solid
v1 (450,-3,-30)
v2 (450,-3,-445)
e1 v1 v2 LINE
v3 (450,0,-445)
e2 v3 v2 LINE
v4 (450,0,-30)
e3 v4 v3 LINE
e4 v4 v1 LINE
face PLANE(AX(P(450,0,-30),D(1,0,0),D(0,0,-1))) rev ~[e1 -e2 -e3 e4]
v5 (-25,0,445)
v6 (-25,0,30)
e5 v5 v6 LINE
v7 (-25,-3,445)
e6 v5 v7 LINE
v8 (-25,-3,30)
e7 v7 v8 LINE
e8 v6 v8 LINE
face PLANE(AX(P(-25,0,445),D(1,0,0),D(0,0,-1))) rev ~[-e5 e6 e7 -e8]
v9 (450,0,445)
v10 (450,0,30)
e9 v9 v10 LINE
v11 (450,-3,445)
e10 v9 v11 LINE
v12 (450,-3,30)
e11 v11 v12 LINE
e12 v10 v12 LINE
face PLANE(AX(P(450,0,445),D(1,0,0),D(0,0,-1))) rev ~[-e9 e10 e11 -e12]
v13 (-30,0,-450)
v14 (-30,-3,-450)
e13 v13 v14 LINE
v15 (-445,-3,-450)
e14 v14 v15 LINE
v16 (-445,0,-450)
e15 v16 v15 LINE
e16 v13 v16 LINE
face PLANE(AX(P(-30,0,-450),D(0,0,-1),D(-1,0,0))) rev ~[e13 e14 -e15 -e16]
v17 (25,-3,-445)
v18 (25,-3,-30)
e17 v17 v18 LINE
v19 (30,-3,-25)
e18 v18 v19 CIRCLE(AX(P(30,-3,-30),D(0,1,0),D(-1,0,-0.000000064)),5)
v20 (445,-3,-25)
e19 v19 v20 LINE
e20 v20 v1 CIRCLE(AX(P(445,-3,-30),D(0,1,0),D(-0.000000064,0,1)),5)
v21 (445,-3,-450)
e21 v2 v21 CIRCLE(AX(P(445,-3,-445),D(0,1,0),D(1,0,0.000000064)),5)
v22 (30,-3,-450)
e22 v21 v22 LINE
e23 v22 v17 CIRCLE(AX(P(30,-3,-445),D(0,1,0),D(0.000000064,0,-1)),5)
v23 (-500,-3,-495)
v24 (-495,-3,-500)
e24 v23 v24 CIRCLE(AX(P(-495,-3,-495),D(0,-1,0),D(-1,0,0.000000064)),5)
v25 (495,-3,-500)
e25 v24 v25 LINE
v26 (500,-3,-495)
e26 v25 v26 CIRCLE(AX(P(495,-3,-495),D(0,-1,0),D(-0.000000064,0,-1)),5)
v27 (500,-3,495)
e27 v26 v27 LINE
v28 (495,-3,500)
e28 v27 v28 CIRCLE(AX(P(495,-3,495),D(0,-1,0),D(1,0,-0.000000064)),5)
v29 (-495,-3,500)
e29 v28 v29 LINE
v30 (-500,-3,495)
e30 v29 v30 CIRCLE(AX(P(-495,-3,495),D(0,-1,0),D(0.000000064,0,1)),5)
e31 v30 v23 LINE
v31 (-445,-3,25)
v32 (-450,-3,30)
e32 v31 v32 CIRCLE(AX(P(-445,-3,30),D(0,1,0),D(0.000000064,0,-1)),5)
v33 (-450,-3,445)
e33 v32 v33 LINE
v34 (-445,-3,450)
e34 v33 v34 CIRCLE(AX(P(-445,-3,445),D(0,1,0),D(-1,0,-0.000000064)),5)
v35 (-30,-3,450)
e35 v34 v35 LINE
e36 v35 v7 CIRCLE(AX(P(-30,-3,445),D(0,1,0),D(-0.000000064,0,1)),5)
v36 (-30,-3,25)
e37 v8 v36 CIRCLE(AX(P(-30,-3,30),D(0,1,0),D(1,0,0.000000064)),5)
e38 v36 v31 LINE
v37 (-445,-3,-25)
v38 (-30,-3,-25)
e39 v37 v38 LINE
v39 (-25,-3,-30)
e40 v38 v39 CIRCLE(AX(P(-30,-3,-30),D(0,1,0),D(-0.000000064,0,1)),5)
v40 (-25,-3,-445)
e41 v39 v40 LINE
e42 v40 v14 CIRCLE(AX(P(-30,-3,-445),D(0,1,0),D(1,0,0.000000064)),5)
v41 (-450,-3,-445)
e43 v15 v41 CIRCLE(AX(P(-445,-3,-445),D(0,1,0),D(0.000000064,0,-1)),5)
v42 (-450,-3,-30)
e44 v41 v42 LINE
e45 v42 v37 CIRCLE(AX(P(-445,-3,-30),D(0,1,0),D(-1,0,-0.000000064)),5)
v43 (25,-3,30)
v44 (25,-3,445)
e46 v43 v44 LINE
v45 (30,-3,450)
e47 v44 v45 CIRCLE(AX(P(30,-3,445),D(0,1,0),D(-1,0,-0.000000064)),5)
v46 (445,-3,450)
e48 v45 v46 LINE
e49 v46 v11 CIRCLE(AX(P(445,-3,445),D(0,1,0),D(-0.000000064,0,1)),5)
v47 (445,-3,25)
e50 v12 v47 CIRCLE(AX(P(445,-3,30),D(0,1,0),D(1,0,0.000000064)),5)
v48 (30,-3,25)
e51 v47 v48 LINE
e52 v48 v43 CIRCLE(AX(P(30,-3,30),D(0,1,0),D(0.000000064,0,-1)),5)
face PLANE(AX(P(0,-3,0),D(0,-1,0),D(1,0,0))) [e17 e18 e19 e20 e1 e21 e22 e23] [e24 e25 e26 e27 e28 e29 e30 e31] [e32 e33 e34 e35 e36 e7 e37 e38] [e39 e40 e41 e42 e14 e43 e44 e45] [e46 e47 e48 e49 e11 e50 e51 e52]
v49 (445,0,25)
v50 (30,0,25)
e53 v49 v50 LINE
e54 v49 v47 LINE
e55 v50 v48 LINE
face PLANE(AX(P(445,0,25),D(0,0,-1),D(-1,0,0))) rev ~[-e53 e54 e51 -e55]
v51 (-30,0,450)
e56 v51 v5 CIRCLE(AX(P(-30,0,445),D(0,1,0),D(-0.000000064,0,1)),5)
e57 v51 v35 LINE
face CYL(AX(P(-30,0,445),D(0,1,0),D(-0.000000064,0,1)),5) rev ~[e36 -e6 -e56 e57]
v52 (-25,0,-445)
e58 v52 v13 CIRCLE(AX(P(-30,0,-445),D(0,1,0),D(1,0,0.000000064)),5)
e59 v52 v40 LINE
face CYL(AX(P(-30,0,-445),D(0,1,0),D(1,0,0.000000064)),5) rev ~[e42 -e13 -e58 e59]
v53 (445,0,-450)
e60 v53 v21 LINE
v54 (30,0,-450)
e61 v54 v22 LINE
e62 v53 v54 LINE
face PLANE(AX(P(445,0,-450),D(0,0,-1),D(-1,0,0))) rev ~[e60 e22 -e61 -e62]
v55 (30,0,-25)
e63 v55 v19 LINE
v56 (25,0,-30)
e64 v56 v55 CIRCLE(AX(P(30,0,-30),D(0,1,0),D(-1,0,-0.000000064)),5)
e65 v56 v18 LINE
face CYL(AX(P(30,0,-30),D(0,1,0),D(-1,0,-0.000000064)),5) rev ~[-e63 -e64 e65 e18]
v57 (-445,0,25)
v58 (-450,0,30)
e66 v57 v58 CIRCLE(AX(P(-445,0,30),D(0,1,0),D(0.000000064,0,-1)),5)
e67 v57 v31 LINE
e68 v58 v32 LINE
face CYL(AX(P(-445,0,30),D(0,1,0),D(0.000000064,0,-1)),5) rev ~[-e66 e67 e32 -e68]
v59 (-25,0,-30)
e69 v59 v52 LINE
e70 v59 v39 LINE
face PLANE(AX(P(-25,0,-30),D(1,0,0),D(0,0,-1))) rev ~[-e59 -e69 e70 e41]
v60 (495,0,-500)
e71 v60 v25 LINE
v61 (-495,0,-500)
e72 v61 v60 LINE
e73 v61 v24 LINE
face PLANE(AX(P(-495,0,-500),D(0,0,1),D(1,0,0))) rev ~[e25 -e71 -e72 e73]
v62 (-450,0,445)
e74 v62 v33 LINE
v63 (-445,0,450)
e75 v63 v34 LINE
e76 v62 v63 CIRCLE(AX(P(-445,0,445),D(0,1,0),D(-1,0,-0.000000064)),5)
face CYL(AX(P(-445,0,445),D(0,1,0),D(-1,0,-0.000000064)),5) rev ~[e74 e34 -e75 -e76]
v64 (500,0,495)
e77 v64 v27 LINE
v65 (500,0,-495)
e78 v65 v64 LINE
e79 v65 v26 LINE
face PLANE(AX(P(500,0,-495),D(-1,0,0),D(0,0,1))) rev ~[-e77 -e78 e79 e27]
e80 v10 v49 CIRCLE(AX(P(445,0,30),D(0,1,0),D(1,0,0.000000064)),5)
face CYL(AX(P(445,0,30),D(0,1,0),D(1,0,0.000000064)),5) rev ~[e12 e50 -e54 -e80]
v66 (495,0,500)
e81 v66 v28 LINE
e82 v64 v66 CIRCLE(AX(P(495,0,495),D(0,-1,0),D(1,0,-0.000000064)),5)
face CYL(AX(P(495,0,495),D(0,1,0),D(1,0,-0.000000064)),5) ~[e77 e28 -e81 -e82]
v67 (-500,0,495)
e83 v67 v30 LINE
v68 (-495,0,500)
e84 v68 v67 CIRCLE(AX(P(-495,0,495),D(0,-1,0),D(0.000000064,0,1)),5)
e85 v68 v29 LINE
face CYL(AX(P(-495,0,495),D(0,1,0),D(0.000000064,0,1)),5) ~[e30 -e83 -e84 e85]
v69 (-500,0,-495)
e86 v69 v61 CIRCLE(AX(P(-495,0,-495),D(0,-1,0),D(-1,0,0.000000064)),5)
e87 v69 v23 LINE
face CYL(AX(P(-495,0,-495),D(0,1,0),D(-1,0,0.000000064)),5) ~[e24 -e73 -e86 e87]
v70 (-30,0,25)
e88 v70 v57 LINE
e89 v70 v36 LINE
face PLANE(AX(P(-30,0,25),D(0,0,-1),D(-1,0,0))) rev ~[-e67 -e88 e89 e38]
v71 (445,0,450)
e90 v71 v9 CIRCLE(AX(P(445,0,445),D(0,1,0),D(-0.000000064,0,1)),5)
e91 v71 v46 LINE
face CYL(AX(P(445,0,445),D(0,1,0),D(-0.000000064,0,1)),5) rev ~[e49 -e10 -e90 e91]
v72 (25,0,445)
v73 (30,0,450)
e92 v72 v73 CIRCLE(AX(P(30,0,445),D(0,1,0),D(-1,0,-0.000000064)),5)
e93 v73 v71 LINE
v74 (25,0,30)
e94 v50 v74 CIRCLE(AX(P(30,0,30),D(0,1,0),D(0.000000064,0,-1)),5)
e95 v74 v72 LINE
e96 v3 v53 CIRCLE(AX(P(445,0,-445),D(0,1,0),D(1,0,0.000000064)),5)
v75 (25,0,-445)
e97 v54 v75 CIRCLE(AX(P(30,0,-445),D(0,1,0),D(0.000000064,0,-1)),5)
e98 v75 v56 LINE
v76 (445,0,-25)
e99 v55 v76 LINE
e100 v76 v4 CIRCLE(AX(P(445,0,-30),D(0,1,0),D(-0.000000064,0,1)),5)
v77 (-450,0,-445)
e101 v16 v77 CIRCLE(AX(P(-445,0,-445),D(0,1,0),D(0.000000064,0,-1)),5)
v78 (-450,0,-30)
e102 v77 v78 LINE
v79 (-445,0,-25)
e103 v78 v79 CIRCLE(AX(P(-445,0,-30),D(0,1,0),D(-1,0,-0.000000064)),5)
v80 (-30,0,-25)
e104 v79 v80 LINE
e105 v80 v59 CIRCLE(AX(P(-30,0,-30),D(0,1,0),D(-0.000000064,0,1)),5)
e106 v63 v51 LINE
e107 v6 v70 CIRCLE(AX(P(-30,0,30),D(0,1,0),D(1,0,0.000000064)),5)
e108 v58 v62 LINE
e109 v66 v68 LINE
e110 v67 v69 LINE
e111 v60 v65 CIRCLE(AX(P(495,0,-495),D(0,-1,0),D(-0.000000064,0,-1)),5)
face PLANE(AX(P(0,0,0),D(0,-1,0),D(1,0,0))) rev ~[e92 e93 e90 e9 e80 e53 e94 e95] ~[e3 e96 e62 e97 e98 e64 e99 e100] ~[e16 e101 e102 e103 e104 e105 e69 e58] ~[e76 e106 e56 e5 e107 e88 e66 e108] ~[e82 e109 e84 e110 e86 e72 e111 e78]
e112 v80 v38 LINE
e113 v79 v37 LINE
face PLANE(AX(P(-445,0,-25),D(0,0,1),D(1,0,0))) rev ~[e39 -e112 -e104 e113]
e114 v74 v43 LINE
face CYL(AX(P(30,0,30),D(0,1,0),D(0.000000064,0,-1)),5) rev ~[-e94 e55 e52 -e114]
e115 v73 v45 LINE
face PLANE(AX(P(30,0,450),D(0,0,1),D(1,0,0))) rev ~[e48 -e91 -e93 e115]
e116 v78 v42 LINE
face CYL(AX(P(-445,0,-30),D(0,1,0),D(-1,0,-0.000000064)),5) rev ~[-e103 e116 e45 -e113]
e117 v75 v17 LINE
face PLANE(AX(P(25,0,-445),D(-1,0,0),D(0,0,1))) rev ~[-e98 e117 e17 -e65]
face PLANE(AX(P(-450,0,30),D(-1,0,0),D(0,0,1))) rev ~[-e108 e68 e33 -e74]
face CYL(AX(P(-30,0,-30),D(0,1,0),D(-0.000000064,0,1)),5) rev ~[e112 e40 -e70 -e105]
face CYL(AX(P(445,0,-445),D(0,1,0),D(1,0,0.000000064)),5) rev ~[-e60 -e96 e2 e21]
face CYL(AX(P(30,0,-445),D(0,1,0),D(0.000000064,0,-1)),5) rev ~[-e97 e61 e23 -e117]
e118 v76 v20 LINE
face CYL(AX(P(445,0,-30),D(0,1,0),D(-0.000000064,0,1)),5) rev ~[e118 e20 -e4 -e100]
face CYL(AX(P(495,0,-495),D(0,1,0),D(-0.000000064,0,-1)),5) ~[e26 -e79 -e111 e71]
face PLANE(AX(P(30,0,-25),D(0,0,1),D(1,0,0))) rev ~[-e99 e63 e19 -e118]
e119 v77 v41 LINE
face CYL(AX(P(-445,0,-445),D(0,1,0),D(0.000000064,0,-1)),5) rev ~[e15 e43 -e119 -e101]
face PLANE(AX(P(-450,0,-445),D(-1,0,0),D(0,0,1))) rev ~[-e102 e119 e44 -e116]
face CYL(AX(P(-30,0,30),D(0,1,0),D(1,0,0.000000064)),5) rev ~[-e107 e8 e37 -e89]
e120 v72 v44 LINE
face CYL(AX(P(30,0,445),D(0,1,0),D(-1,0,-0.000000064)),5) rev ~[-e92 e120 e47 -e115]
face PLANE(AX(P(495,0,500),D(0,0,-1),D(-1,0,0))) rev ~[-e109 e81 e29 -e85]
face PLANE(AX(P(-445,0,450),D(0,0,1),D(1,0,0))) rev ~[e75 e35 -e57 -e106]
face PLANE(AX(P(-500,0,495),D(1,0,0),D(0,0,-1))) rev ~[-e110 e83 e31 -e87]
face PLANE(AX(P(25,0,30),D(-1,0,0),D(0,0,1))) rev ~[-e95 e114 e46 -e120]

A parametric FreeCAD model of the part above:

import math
import FreeCAD as App
import Part
import Sketcher
Q = App.Units.Quantity

doc = App.newDocument("Part")
body = doc.addObject("PartDesign::Body", "Body")

# Sketch on XZ plane
sketch1 = body.newObject("Sketcher::SketchObject", "Sketch")
sketch1.AttachmentSupport = (doc.getObject("XZ_Plane"), [""])
sketch1.MapMode = "FlatFace"
sketch1.addGeometry([
    Part.ArcOfCircle(Part.Circle(App.Vector(495, 495, 0), App.Vector(0, 0, 1), 5), math.radians(-0.000004), math.radians(90.000004)),  # 0
    Part.LineSegment(App.Vector(495, 500, 0), App.Vector(-495, 500, 0)),  # 1
    Part.ArcOfCircle(Part.Circle(App.Vector(-495, 495, 0), App.Vector(0, 0, 1), 5), math.radians(89.999996), math.radians(180.000004)),  # 2
    Part.LineSegment(App.Vector(-500, 495, 0), App.Vector(-500, -495, 0)),  # 3
    Part.ArcOfCircle(Part.Circle(App.Vector(-495, -495, 0), App.Vector(0, 0, 1), 5), math.radians(179.999996), math.radians(270.000004)),  # 4
    Part.LineSegment(App.Vector(-495, -500, 0), App.Vector(495, -500, 0)),  # 5
    Part.ArcOfCircle(Part.Circle(App.Vector(495, -495, 0), App.Vector(0, 0, 1), 5), math.radians(-90.000004), math.radians(0.000004)),  # 6
    Part.LineSegment(App.Vector(500, -495, 0), App.Vector(500, 495, 0)),  # 7
    Part.LineSegment(App.Vector(-30, -450, 0), App.Vector(-445, -450, 0)),  # 8
    Part.ArcOfCircle(Part.Circle(App.Vector(-445, -445, 0), App.Vector(0, 0, 1), 5), math.radians(179.999996), math.radians(270.000004)),  # 9
    Part.LineSegment(App.Vector(-450, -445, 0), App.Vector(-450, -30, 0)),  # 10
    Part.ArcOfCircle(Part.Circle(App.Vector(-445, -30, 0), App.Vector(0, 0, 1), 5), math.radians(89.999996), math.radians(180.000004)),  # 11
    Part.LineSegment(App.Vector(-445, -25, 0), App.Vector(-30, -25, 0)),  # 12
    Part.ArcOfCircle(Part.Circle(App.Vector(-30, -30, 0), App.Vector(0, 0, 1), 5), math.radians(-0.000004), math.radians(90.000004)),  # 13
    Part.LineSegment(App.Vector(-25, -30, 0), App.Vector(-25, -445, 0)),  # 14
    Part.ArcOfCircle(Part.Circle(App.Vector(-30, -445, 0), App.Vector(0, 0, 1), 5), math.radians(-90.000004), math.radians(0.000004)),  # 15
    Part.LineSegment(App.Vector(445, -450, 0), App.Vector(30, -450, 0)),  # 16
    Part.ArcOfCircle(Part.Circle(App.Vector(30, -445, 0), App.Vector(0, 0, 1), 5), math.radians(179.999996), math.radians(270.000004)),  # 17
    Part.LineSegment(App.Vector(25, -445, 0), App.Vector(25, -30, 0)),  # 18
    Part.ArcOfCircle(Part.Circle(App.Vector(30, -30, 0), App.Vector(0, 0, 1), 5), math.radians(89.999996), math.radians(180.000004)),  # 19
    Part.LineSegment(App.Vector(30, -25, 0), App.Vector(445, -25, 0)),  # 20
    Part.ArcOfCircle(Part.Circle(App.Vector(445, -30, 0), App.Vector(0, 0, 1), 5), math.radians(-0.000004), math.radians(90.000004)),  # 21
    Part.LineSegment(App.Vector(450, -30, 0), App.Vector(450, -445, 0)),  # 22
    Part.ArcOfCircle(Part.Circle(App.Vector(445, -445, 0), App.Vector(0, 0, 1), 5), math.radians(-90.000004), math.radians(0.000004)),  # 23
    Part.LineSegment(App.Vector(-25, 445, 0), App.Vector(-25, 30, 0)),  # 24
    Part.ArcOfCircle(Part.Circle(App.Vector(-30, 30, 0), App.Vector(0, 0, 1), 5), math.radians(-90.000004), math.radians(0.000004)),  # 25
    Part.LineSegment(App.Vector(-30, 25, 0), App.Vector(-445, 25, 0)),  # 26
    Part.ArcOfCircle(Part.Circle(App.Vector(-445, 30, 0), App.Vector(0, 0, 1), 5), math.radians(179.999996), math.radians(270.000004)),  # 27
    Part.LineSegment(App.Vector(-450, 30, 0), App.Vector(-450, 445, 0)),  # 28
    Part.ArcOfCircle(Part.Circle(App.Vector(-445, 445, 0), App.Vector(0, 0, 1), 5), math.radians(89.999996), math.radians(180.000004)),  # 29
    Part.LineSegment(App.Vector(-445, 450, 0), App.Vector(-30, 450, 0)),  # 30
    Part.ArcOfCircle(Part.Circle(App.Vector(-30, 445, 0), App.Vector(0, 0, 1), 5), math.radians(-0.000004), math.radians(90.000004)),  # 31
    Part.LineSegment(App.Vector(445, 25, 0), App.Vector(30, 25, 0)),  # 32
    Part.ArcOfCircle(Part.Circle(App.Vector(30, 30, 0), App.Vector(0, 0, 1), 5), math.radians(179.999996), math.radians(270.000004)),  # 33
    Part.LineSegment(App.Vector(25, 30, 0), App.Vector(25, 445, 0)),  # 34
    Part.ArcOfCircle(Part.Circle(App.Vector(30, 445, 0), App.Vector(0, 0, 1), 5), math.radians(89.999996), math.radians(180.000004)),  # 35
    Part.LineSegment(App.Vector(30, 450, 0), App.Vector(445, 450, 0)),  # 36
    Part.ArcOfCircle(Part.Circle(App.Vector(445, 445, 0), App.Vector(0, 0, 1), 5), math.radians(-0.000004), math.radians(90.000004)),  # 37
    Part.LineSegment(App.Vector(450, 445, 0), App.Vector(450, 30, 0)),  # 38
    Part.ArcOfCircle(Part.Circle(App.Vector(445, 30, 0), App.Vector(0, 0, 1), 5), math.radians(-90.000004), math.radians(0.000004)),  # 39
], False)
sketch1.addConstraint([
    Sketcher.Constraint("Tangent", 0, 2, 1, 1),
    Sketcher.Constraint("Tangent", 1, 2, 2, 1),
    Sketcher.Constraint("Tangent", 2, 2, 3, 1),
    Sketcher.Constraint("Tangent", 3, 2, 4, 1),
    Sketcher.Constraint("Tangent", 4, 2, 5, 1),
    Sketcher.Constraint("Tangent", 5, 2, 6, 1),
    Sketcher.Constraint("Tangent", 6, 2, 7, 1),
    Sketcher.Constraint("Tangent", 7, 2, 0, 1),
    Sketcher.Constraint("Tangent", 8, 2, 9, 2),
    Sketcher.Constraint("Tangent", 9, 1, 10, 1),
    Sketcher.Constraint("Tangent", 10, 2, 11, 2),
    Sketcher.Constraint("Tangent", 11, 1, 12, 1),
    Sketcher.Constraint("Tangent", 12, 2, 13, 2),
    Sketcher.Constraint("Tangent", 13, 1, 14, 1),
    Sketcher.Constraint("Tangent", 14, 2, 15, 2),
    Sketcher.Constraint("Tangent", 15, 1, 8, 1),
    Sketcher.Constraint("Tangent", 16, 2, 17, 2),
    Sketcher.Constraint("Tangent", 17, 1, 18, 1),
    Sketcher.Constraint("Tangent", 18, 2, 19, 2),
    Sketcher.Constraint("Tangent", 19, 1, 20, 1),
    Sketcher.Constraint("Tangent", 20, 2, 21, 2),
    Sketcher.Constraint("Tangent", 21, 1, 22, 1),
    Sketcher.Constraint("Tangent", 22, 2, 23, 2),
    Sketcher.Constraint("Tangent", 23, 1, 16, 1),
    Sketcher.Constraint("Tangent", 24, 2, 25, 2),
    Sketcher.Constraint("Tangent", 25, 1, 26, 1),
    Sketcher.Constraint("Tangent", 26, 2, 27, 2),
    Sketcher.Constraint("Tangent", 27, 1, 28, 1),
    Sketcher.Constraint("Tangent", 28, 2, 29, 2),
    Sketcher.Constraint("Tangent", 29, 1, 30, 1),
    Sketcher.Constraint("Tangent", 30, 2, 31, 2),
    Sketcher.Constraint("Tangent", 31, 1, 24, 1),
    Sketcher.Constraint("Tangent", 32, 2, 33, 2),
    Sketcher.Constraint("Tangent", 33, 1, 34, 1),
    Sketcher.Constraint("Tangent", 34, 2, 35, 2),
    Sketcher.Constraint("Tangent", 35, 1, 36, 1),
    Sketcher.Constraint("Tangent", 36, 2, 37, 2),
    Sketcher.Constraint("Tangent", 37, 1, 38, 1),
    Sketcher.Constraint("Tangent", 38, 2, 39, 2),
    Sketcher.Constraint("Tangent", 39, 1, 32, 1),
    Sketcher.Constraint("Horizontal", 1),
    Sketcher.Constraint("Vertical", 3),
    Sketcher.Constraint("Horizontal", 5),
    Sketcher.Constraint("Vertical", 7),
    Sketcher.Constraint("Horizontal", 8),
    Sketcher.Constraint("Vertical", 10),
    Sketcher.Constraint("Horizontal", 12),
    Sketcher.Constraint("Vertical", 14),
    Sketcher.Constraint("Horizontal", 16),
    Sketcher.Constraint("Vertical", 18),
    Sketcher.Constraint("Horizontal", 20),
    Sketcher.Constraint("Vertical", 22),
    Sketcher.Constraint("Vertical", 24),
    Sketcher.Constraint("Horizontal", 26),
    Sketcher.Constraint("Vertical", 28),
    Sketcher.Constraint("Horizontal", 30),
    Sketcher.Constraint("Horizontal", 32),
    Sketcher.Constraint("Vertical", 34),
    Sketcher.Constraint("Horizontal", 36),
    Sketcher.Constraint("Vertical", 38),
    Sketcher.Constraint("Equal", 0, 2),
    Sketcher.Constraint("Equal", 2, 4),
    Sketcher.Constraint("Equal", 4, 6),
    Sketcher.Constraint("Equal", 6, 9),
    Sketcher.Constraint("Equal", 9, 11),
    Sketcher.Constraint("Equal", 11, 13),
    Sketcher.Constraint("Equal", 13, 15),
    Sketcher.Constraint("Equal", 15, 17),
    Sketcher.Constraint("Equal", 17, 19),
    Sketcher.Constraint("Equal", 19, 21),
    Sketcher.Constraint("Equal", 21, 23),
    Sketcher.Constraint("Equal", 23, 25),
    Sketcher.Constraint("Equal", 25, 27),
    Sketcher.Constraint("Equal", 27, 29),
    Sketcher.Constraint("Equal", 29, 31),
    Sketcher.Constraint("Equal", 31, 33),
    Sketcher.Constraint("Equal", 33, 35),
    Sketcher.Constraint("Equal", 35, 37),
    Sketcher.Constraint("Equal", 37, 39),
    Sketcher.Constraint("Symmetric", 0, 3, 4, 3, -1, 1),
    Sketcher.Constraint("Symmetric", 19, 3, 25, 3, -1, 1),
    Sketcher.Constraint("Symmetric", 23, 3, 29, 3, -1, 1),
    Sketcher.Constraint("Symmetric", 13, 3, 33, 3, -1, 1),
    Sketcher.Constraint("Symmetric", 9, 3, 37, 3, -1, 1),
    Sketcher.Constraint("Symmetric", 15, 3, 17, 3, -2),
    Sketcher.Constraint("Symmetric", 11, 3, 21, 3, -2),
    Sketcher.Constraint("Equal", 5, 3),
    Sketcher.Constraint("Equal", 36, 10),
    Sketcher.Constraint("Radius", 0, Q("5 mm")),
    Sketcher.Constraint("DistanceX", 1, 2, 1, 1, Q("990 mm")),
    Sketcher.Constraint("DistanceX", 8, 2, 8, 1, Q("415 mm")),
    Sketcher.Constraint("DistanceX", 9, 3, -1, 1, Q("445 mm")),
    Sketcher.Constraint("DistanceY", 9, 3, -1, 1, Q("445 mm")),
])
pad1 = body.newObject("PartDesign::Pad", "Pad")
pad1.Profile = sketch1
pad1.Length = 3

doc.recompute()
